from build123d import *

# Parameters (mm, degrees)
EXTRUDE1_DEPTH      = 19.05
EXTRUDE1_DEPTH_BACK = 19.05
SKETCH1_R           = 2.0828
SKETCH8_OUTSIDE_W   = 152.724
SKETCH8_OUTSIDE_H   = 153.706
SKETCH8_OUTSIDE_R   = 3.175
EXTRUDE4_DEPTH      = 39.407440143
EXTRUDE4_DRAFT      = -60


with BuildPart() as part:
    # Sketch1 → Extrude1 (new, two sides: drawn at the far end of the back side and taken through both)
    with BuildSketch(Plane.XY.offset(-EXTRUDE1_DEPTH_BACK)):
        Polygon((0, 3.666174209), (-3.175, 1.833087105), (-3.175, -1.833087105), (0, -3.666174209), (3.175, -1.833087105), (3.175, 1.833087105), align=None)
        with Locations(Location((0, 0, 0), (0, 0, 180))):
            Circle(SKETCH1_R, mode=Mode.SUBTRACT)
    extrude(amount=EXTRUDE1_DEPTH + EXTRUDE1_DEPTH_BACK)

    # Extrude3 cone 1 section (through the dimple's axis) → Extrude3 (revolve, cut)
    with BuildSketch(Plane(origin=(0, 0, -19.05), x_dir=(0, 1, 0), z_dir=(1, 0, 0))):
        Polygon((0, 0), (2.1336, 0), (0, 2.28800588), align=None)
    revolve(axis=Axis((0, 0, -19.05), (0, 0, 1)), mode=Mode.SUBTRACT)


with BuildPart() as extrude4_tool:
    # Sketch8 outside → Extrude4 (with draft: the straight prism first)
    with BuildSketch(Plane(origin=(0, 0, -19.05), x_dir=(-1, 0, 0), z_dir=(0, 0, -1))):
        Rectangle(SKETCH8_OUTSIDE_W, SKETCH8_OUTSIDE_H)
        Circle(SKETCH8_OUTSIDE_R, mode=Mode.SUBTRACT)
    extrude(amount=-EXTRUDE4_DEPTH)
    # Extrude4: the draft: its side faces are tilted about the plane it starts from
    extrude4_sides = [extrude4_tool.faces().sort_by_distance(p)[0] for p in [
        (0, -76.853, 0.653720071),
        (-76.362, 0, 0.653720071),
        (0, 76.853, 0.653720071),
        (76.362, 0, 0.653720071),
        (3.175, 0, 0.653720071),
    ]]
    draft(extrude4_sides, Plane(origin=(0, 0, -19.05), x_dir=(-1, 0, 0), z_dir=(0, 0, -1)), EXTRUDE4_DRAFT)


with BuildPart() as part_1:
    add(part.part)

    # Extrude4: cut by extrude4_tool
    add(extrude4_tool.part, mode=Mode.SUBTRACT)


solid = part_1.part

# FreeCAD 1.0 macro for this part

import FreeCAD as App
import Part
import Sketcher
Q = App.Units.Quantity


def faces_at(feature, points):
    """Names of the faces that lie closest to the given points."""
    faces = feature.Shape.Faces
    near = lambda p: min(range(len(faces)), key=lambda i: faces[i].distToShape(Part.Vertex(*p))[0])
    return sorted({f"Face{near(p) + 1}" for p in points})

doc = App.newDocument("Part")
params = doc.addObject("Spreadsheet::Sheet", "Params")
for row, (alias, value) in enumerate([
    ("sketch1_diameter", "0.164 in"),
    ("pad1_length", "0.75 in"),
    ("pad1_length2", "0.75 in"),
    ("sketch2_width", "0.084 in"),
    ("groove_angle", "360 deg"),
    ("sketch3_diameter", "0.25 in"),
    ("pad2_length", "39.40744 mm"),
    ("draft_angle", "60 deg"),
], start=1):
    params.set(f"A{row}", alias)
    params.set(f"B{row}", "=" + value)
    params.setAlias(f"B{row}", alias)

body = doc.addObject("PartDesign::Body", "Body")

# Sketch on XY plane
sketch1 = body.newObject("Sketcher::SketchObject", "Sketch")
sketch1.AttachmentSupport = (doc.getObject("XY_Plane"), [""])
sketch1.MapMode = "FlatFace"
sketch1.addGeometry([
    Part.LineSegment(App.Vector(0, 3.7, 0), App.Vector(-3.2, 1.8, 0)),  # 0
    Part.LineSegment(App.Vector(-3.2, 1.8, 0), App.Vector(-3.2, -1.8, 0)),  # 1
    Part.LineSegment(App.Vector(-3.2, -1.8, 0), App.Vector(0, -3.7, 0)),  # 2
    Part.LineSegment(App.Vector(0, -3.7, 0), App.Vector(3.2, -1.8, 0)),  # 3
    Part.LineSegment(App.Vector(3.2, -1.8, 0), App.Vector(3.2, 1.8, 0)),  # 4
    Part.LineSegment(App.Vector(3.2, 1.8, 0), App.Vector(0, 3.7, 0)),  # 5
    Part.Circle(App.Vector(0, 0, 0), App.Vector(0, 0, 1), 2.1),  # 6
], False)
sketch1.addConstraint([
    Sketcher.Constraint("Coincident", 0, 2, 1, 1),
    Sketcher.Constraint("Coincident", 1, 2, 2, 1),
    Sketcher.Constraint("Coincident", 2, 2, 3, 1),
    Sketcher.Constraint("Coincident", 3, 2, 4, 1),
    Sketcher.Constraint("Coincident", 4, 2, 5, 1),
    Sketcher.Constraint("Coincident", 5, 2, 0, 1),
    Sketcher.Constraint("Vertical", 1),
    Sketcher.Constraint("Vertical", 4),
    Sketcher.Constraint("Coincident", 6, 3, -1, 1),
    Sketcher.Constraint("Symmetric", 0, 2, 3, 2, -1, 1),
    Sketcher.Constraint("Symmetric", 2, 2, 5, 2, -1, 1),
    Sketcher.Constraint("PointOnObject", 2, 2, -2),
    Sketcher.Constraint("Parallel", 2, 5),
    Sketcher.Constraint("Horizontal", 1, 2, 3, 2),
    Sketcher.Constraint("Diameter", 6, Q("0.164 in")),
    Sketcher.Constraint("Angle", 0, Q("-150 deg")),
    Sketcher.Constraint("DistanceX", 1, 2, 3, 2, Q("0.25 in")),
    Sketcher.Constraint("DistanceY", 1, 2, 1, 1, Q("3.666174 mm")),
])
sketch1.setExpression("Constraints[14]", "Params.sketch1_diameter")
pad1 = body.newObject("PartDesign::Pad", "Pad")
pad1.Profile = sketch1
pad1.Type = "TwoLengths"
pad1.setExpression("Length", "Params.pad1_length")
pad1.setExpression("Length2", "Params.pad1_length2")

# Sketch on YZ plane
sketch2 = body.newObject("Sketcher::SketchObject", "Sketch001")
sketch2.AttachmentSupport = (doc.getObject("YZ_Plane"), [""])
sketch2.MapMode = "FlatFace"
sketch2.addGeometry([
    Part.LineSegment(App.Vector(0, -19.1, 0), App.Vector(2.1, -19.1, 0)),
    Part.LineSegment(App.Vector(2.1, -19.1, 0), App.Vector(0, -16.8, 0)),
    Part.LineSegment(App.Vector(0, -16.8, 0), App.Vector(0, -19.1, 0)),
], False)
sketch2.addConstraint([
    Sketcher.Constraint("Coincident", 0, 2, 1, 1),
    Sketcher.Constraint("Coincident", 1, 2, 2, 1),
    Sketcher.Constraint("Coincident", 2, 2, 0, 1),
    Sketcher.Constraint("Horizontal", 0),
    Sketcher.Constraint("Vertical", 2),
    Sketcher.Constraint("PointOnObject", 1, 2, -2),
    Sketcher.Constraint("Angle", 1, Q("133 deg")),
    Sketcher.Constraint("DistanceX", 0, 1, 0, 2, Q("0.084 in")),
    Sketcher.Constraint("DistanceY", 0, 2, -1, 1, Q("0.75 in")),
])
sketch2.setExpression("Constraints[7]", "Params.sketch2_width")
groove = body.newObject("PartDesign::Groove", "Groove")
groove.Profile = sketch2
groove.ReferenceAxis = (sketch2, ["V_Axis"])
groove.setExpression("Angle", "Params.groove_angle")
body2 = doc.addObject("PartDesign::Body", "Body001")

# Sketch on XY plane
sketch3 = body2.newObject("Sketcher::SketchObject", "Sketch002")
sketch3.AttachmentSupport = (doc.getObject("XY_Plane001"), [""])
sketch3.MapMode = "FlatFace"
sketch3.AttachmentOffset = App.Placement(App.Vector(0, 0, -0.75 * 25.4), App.Rotation())
sketch3.addGeometry([
    Part.LineSegment(App.Vector(76.4, 76.9, 0), App.Vector(76.4, -76.9, 0)),  # 0
    Part.LineSegment(App.Vector(76.4, -76.9, 0), App.Vector(-76.4, -76.9, 0)),  # 1
    Part.LineSegment(App.Vector(-76.4, -76.9, 0), App.Vector(-76.4, 76.9, 0)),  # 2
    Part.LineSegment(App.Vector(-76.4, 76.9, 0), App.Vector(76.4, 76.9, 0)),  # 3
    Part.Circle(App.Vector(0, 0, 0), App.Vector(0, 0, 1), 3.2),  # 4
], False)
sketch3.addConstraint([
    Sketcher.Constraint("Coincident", 0, 2, 1, 1),
    Sketcher.Constraint("Coincident", 1, 2, 2, 1),
    Sketcher.Constraint("Coincident", 2, 2, 3, 1),
    Sketcher.Constraint("Coincident", 3, 2, 0, 1),
    Sketcher.Constraint("Vertical", 0),
    Sketcher.Constraint("Horizontal", 1),
    Sketcher.Constraint("Vertical", 2),
    Sketcher.Constraint("Horizontal", 3),
    Sketcher.Constraint("Coincident", 4, 3, -1, 1),
    Sketcher.Constraint("Symmetric", 0, 2, 2, 2, -1, 1),
    Sketcher.Constraint("Diameter", 4, Q("0.25 in")),
    Sketcher.Constraint("DistanceX", 1, 2, 1, 1, Q("152.724 mm")),
    Sketcher.Constraint("DistanceY", 0, 2, 0, 1, Q("153.706 mm")),
])
sketch3.setExpression("Constraints[10]", "Params.sketch3_diameter")
pad2 = body2.newObject("PartDesign::Pad", "Pad001")
pad2.Profile = sketch3
pad2.setExpression("Length", "Params.pad2_length")
doc.recompute()

datumplane = body2.newObject("PartDesign::Plane", "DatumPlane")
datumplane.AttachmentSupport = (doc.getObject("XY_Plane001"), [""])
datumplane.MapMode = "FlatFace"
datumplane.AttachmentOffset = App.Placement(App.Vector(0, 0, -0.75 * 25.4), App.Rotation())
draft = body2.newObject("PartDesign::Draft", "Draft")
draft.Base = (pad2, faces_at(pad2, [
    (0, -76.853, 0.654),
    (-76.362, 0, 0.654),
    (0, 76.853, 0.654),
    (76.362, 0, 0.654),
    (3.175, 0, 0.654),
]))
draft.NeutralPlane = (datumplane, [""])
draft.setExpression("Angle", "Params.draft_angle")
draft.Reversed = False
doc.recompute()

boolean = body.newObject("PartDesign::Boolean", "Boolean")
boolean.Type = "Cut"
boolean.addObjects([body2])

doc.recompute()
